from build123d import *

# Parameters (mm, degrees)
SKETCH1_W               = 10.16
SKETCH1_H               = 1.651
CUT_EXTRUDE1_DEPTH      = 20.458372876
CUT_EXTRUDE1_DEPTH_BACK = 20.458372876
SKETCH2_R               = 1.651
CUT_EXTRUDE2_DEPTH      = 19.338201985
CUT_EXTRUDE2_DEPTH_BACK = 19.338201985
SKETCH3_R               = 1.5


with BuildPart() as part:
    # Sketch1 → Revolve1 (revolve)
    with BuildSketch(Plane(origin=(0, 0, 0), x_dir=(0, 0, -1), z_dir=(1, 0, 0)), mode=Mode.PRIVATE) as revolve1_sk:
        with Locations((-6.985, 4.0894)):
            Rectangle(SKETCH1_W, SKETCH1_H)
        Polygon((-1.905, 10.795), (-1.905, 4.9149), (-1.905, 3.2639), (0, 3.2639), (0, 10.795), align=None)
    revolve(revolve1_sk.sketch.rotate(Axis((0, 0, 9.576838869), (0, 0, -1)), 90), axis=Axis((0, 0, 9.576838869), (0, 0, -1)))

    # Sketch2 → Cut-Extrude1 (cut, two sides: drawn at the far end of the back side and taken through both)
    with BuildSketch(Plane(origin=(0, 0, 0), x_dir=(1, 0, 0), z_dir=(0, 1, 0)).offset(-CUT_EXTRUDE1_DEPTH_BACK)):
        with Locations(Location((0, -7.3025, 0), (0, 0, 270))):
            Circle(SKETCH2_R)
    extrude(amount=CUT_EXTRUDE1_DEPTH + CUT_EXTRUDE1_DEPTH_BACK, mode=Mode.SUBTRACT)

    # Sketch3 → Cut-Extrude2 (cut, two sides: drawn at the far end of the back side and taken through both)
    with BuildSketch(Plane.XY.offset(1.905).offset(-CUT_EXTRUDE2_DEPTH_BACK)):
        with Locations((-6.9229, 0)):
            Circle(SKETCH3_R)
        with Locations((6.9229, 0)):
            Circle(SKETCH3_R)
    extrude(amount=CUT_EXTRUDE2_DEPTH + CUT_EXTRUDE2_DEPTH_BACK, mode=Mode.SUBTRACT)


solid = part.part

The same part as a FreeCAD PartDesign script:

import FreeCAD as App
import Part
import Sketcher
Q = App.Units.Quantity

doc = App.newDocument("Part")
params = doc.addObject("Spreadsheet::Sheet", "Params")
for row, (alias, value) in enumerate([
    ("sketch1_height", "0.4 in"),
    ("sketch1_width", "0.065 in"),
    ("sketch1_height2", "0.475 in"),
    ("revolution_angle", "360 deg"),
    ("sketch2_diameter", "0.13 in"),
], start=1):
    params.set(f"A{row}", alias)
    params.set(f"B{row}", "=" + value)
    params.setAlias(f"B{row}", alias)

body = doc.addObject("PartDesign::Body", "Body")

# Sketch on YZ plane
sketch1 = body.newObject("Sketcher::SketchObject", "Sketch")
sketch1.AttachmentSupport = (doc.getObject("YZ_Plane"), [""])
sketch1.MapMode = "FlatFace"
sketch1.addGeometry([
    Part.LineSegment(App.Vector(4.9, 12.1, 0), App.Vector(3.3, 12.1, 0)),  # 0
    Part.LineSegment(App.Vector(3.3, 12.1, 0), App.Vector(3.3, 0, 0)),  # 1
    Part.LineSegment(App.Vector(3.3, 0, 0), App.Vector(10.8, 0, 0)),  # 2
    Part.LineSegment(App.Vector(10.8, 0, 0), App.Vector(10.8, 1.9, 0)),  # 3
    Part.LineSegment(App.Vector(10.8, 1.9, 0), App.Vector(4.9, 1.9, 0)),  # 4
    Part.LineSegment(App.Vector(4.9, 1.9, 0), App.Vector(4.9, 12.1, 0)),  # 5
], False)
sketch1.addConstraint([
    Sketcher.Constraint("Coincident", 0, 2, 1, 1),
    Sketcher.Constraint("Coincident", 1, 2, 2, 1),
    Sketcher.Constraint("Coincident", 2, 2, 3, 1),
    Sketcher.Constraint("Coincident", 3, 2, 4, 1),
    Sketcher.Constraint("Coincident", 4, 2, 5, 1),
    Sketcher.Constraint("Coincident", 5, 2, 0, 1),
    Sketcher.Constraint("Horizontal", 0),
    Sketcher.Constraint("Vertical", 1),
    Sketcher.Constraint("Horizontal", 2),
    Sketcher.Constraint("Vertical", 3),
    Sketcher.Constraint("Horizontal", 4),
    Sketcher.Constraint("Vertical", 5),
    Sketcher.Constraint("PointOnObject", 1, 2, -1),
    Sketcher.Constraint("DistanceY", 5, 1, 5, 2, Q("0.4 in")),
    Sketcher.Constraint("DistanceX", 0, 2, 0, 1, Q("0.065 in")),
    Sketcher.Constraint("DistanceY", 1, 2, 1, 1, Q("0.475 in")),
    Sketcher.Constraint("DistanceX", 2, 1, 2, 2, Q("0.2965 in")),
    Sketcher.Constraint("DistanceX", -1, 1, 2, 2, Q("0.425 in")),
])
sketch1.setExpression("Constraints[13]", "Params.sketch1_height")
sketch1.setExpression("Constraints[14]", "Params.sketch1_width")
sketch1.setExpression("Constraints[15]", "Params.sketch1_height2")
revolution = body.newObject("PartDesign::Revolution", "Revolution")
revolution.Profile = sketch1
revolution.ReferenceAxis = (sketch1, ["V_Axis"])
revolution.setExpression("Angle", "Params.revolution_angle")

# Sketch on XZ plane
sketch2 = body.newObject("Sketcher::SketchObject", "Sketch001")
sketch2.AttachmentSupport = (doc.getObject("XZ_Plane"), [""])
sketch2.MapMode = "FlatFace"
sketch2.addGeometry(Part.Circle(App.Vector(0, 7.3, 0), App.Vector(0, 0, 1), 1.7), False)
sketch2.addConstraint([
    Sketcher.Constraint("PointOnObject", 0, 3, -2),
    Sketcher.Constraint("Diameter", 0, Q("0.13 in")),
    Sketcher.Constraint("DistanceY", -1, 1, 0, 3, Q("0.2875 in")),
])
sketch2.setExpression("Constraints[1]", "Params.sketch2_diameter")
pocket1 = body.newObject("PartDesign::Pocket", "Pocket")
pocket1.Profile = sketch2
pocket1.Type = "ThroughAll"
pocket1.Midplane = True

# Sketch on XY plane
sketch3 = body.newObject("Sketcher::SketchObject", "Sketch002")
sketch3.AttachmentSupport = (doc.getObject("XY_Plane"), [""])
sketch3.MapMode = "FlatFace"
sketch3.AttachmentOffset = App.Placement(App.Vector(0, 0, 0.075 * 25.4), App.Rotation())
sketch3.addGeometry([
    Part.Circle(App.Vector(-6.9, 0, 0), App.Vector(0, 0, 1), 1.5),
    Part.Circle(App.Vector(6.9, 0, 0), App.Vector(0, 0, 1), 1.5),
], False)
sketch3.addConstraint([
    Sketcher.Constraint("Equal", 0, 1),
    Sketcher.Constraint("Symmetric", 0, 3, 1, 3, -1, 1),
    Sketcher.Constraint("PointOnObject", 0, 3, -1),
    Sketcher.Constraint("Diameter", 0, Q("3 mm")),
    Sketcher.Constraint("DistanceX", 0, 3, -1, 1, Q("6.9229 mm")),
])
pocket2 = body.newObject("PartDesign::Pocket", "Pocket001")
pocket2.Profile = sketch3
pocket2.Type = "ThroughAll"
pocket2.Midplane = True

doc.recompute()
